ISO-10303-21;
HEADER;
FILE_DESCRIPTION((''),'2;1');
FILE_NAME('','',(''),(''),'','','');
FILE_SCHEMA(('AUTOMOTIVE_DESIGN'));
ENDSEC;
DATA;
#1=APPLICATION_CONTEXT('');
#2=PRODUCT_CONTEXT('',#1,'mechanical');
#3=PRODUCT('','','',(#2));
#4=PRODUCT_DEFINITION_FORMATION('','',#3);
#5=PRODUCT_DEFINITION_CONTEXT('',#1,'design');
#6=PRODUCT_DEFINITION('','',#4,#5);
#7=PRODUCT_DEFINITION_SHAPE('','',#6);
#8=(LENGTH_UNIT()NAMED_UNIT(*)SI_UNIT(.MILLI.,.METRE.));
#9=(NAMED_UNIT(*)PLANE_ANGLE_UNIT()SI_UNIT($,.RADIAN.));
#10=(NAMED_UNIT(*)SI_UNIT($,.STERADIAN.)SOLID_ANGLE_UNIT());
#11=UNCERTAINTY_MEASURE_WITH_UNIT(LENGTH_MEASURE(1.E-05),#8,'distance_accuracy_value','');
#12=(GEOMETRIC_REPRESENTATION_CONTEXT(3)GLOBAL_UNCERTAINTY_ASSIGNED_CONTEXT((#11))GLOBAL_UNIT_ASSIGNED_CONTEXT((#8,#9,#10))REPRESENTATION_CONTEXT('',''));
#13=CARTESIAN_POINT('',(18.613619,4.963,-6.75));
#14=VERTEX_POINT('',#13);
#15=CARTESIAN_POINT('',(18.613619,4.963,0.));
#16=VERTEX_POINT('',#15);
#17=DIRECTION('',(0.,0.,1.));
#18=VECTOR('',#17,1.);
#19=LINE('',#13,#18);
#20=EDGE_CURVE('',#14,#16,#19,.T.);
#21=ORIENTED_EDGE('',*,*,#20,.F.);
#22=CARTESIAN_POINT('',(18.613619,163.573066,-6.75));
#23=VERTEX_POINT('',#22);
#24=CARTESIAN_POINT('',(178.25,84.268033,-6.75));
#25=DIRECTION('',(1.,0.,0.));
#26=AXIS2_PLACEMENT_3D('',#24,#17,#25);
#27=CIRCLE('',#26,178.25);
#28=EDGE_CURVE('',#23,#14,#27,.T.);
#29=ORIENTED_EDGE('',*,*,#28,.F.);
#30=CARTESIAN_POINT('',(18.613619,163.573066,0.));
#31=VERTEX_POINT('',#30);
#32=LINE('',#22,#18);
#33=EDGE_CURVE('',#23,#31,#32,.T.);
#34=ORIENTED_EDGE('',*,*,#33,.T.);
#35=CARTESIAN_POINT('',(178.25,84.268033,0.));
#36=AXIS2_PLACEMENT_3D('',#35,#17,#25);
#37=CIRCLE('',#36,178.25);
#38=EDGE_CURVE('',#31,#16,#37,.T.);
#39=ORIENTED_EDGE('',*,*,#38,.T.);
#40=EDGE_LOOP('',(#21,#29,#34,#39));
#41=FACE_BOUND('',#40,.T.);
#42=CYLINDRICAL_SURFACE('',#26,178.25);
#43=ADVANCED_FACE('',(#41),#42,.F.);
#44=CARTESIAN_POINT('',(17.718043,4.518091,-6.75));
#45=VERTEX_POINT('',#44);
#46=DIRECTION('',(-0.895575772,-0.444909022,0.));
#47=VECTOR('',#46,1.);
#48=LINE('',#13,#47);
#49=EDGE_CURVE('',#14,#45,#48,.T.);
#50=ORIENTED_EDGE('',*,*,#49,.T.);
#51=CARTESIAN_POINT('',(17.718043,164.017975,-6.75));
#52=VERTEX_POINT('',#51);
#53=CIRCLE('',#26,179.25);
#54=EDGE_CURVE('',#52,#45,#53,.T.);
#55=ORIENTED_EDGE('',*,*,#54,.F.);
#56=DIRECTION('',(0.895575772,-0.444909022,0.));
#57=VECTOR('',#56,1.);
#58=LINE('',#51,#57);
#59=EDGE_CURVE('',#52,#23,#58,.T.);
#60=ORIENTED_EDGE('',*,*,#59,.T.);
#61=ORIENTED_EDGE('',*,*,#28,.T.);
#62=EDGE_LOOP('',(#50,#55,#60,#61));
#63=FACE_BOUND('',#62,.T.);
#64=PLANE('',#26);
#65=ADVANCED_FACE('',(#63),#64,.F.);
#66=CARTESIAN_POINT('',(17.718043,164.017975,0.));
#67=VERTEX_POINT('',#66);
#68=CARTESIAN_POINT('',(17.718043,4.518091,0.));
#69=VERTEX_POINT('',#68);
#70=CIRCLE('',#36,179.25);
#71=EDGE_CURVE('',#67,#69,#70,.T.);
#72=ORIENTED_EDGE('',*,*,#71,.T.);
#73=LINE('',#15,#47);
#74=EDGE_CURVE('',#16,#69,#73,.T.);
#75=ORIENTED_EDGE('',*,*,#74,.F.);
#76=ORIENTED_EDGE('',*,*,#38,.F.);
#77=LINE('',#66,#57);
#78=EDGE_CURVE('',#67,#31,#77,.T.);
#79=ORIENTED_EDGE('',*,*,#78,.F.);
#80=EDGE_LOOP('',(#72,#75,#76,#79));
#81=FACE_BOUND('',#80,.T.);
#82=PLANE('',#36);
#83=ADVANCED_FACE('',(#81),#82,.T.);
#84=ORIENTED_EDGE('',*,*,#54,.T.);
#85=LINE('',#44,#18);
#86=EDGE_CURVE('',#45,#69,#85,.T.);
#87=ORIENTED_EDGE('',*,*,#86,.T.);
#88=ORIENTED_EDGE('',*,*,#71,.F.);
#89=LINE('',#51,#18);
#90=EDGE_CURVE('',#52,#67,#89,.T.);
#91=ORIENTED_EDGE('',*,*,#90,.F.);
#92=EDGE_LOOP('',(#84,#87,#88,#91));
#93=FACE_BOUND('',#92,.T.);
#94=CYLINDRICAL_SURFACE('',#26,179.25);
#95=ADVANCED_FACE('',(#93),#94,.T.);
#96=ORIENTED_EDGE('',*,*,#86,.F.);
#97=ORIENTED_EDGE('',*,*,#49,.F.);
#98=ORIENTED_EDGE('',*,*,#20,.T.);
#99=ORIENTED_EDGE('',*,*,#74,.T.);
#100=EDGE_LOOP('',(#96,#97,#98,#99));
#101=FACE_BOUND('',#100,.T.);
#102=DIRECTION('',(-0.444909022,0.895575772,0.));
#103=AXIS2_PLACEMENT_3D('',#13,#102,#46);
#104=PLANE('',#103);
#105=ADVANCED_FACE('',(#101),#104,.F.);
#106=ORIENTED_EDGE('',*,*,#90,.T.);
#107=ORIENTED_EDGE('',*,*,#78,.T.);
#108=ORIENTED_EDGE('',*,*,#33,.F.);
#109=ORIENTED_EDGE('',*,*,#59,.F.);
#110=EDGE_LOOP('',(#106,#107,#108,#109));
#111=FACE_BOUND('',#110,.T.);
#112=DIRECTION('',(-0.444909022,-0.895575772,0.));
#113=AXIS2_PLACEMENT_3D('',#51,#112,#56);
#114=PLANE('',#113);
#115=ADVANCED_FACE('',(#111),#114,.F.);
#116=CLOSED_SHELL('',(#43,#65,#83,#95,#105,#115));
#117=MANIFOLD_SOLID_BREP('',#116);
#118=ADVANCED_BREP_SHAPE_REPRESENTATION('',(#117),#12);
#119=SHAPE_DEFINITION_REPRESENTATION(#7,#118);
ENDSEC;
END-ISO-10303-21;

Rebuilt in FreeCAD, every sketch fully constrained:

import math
import FreeCAD as App
import Part
import Sketcher

V = App.Vector

doc = App.newDocument("Part")
body = doc.addObject("PartDesign::Body", "Body")

sketch1 = body.newObject("Sketcher::SketchObject", "Sketch")
sketch1.AttachmentSupport = (doc.getObject("XY_Plane"), [""])
sketch1.MapMode = "FlatFace"
sketch1.addGeometry(Part.ArcOfCircle(Part.Circle(V(178.25, 84.268033, 0), V(0, 0, 1), 178.25), math.radians(153.582482), math.radians(206.417518)), False)
sketch1.addGeometry(Part.LineSegment(V(18.613619, 163.573066, 0), V(17.718043, 164.017975, 0)), False)
sketch1.addGeometry(Part.ArcOfCircle(Part.Circle(V(178.25, 84.268033, 0), V(0, 0, 1), 179.25), math.radians(153.582482), math.radians(206.417518)), False)
sketch1.addGeometry(Part.LineSegment(V(17.718043, 4.518091, 0), V(18.613619, 4.963, 0)), False)
sketch1.addConstraint(Sketcher.Constraint("Coincident", 0, 1, 1, 1))
sketch1.addConstraint(Sketcher.Constraint("Coincident", 1, 2, 2, 1))
sketch1.addConstraint(Sketcher.Constraint("Coincident", 2, 2, 3, 1))
sketch1.addConstraint(Sketcher.Constraint("Coincident", 3, 2, 0, 2))
sketch1.addConstraint(Sketcher.Constraint("Coincident", 2, 3, 0, 3))
sketch1.addConstraint(Sketcher.Constraint("Vertical", 1, 2, 2, 2))
sketch1.addConstraint(Sketcher.Constraint("Vertical", 0, 1, 3, 2))
sketch1.addConstraint(Sketcher.Constraint("Radius", 0, 178.25))
sketch1.addConstraint(Sketcher.Constraint("Radius", 2, 179.25))
sketch1.addConstraint(Sketcher.Constraint("DistanceX", -1, 1, 0, 3, 178.25))
sketch1.addConstraint(Sketcher.Constraint("DistanceY", -1, 1, 3, 2, 4.963))
sketch1.addConstraint(Sketcher.Constraint("DistanceX", -1, 1, 0, 1, 18.613619))
sketch1.addConstraint(Sketcher.Constraint("DistanceY", -1, 1, 2, 2, 4.518091))
pad1 = body.newObject("PartDesign::Pad", "Pad")
pad1.Profile = sketch1
pad1.Length = 6.75
pad1.Reversed = True

doc.recompute()
